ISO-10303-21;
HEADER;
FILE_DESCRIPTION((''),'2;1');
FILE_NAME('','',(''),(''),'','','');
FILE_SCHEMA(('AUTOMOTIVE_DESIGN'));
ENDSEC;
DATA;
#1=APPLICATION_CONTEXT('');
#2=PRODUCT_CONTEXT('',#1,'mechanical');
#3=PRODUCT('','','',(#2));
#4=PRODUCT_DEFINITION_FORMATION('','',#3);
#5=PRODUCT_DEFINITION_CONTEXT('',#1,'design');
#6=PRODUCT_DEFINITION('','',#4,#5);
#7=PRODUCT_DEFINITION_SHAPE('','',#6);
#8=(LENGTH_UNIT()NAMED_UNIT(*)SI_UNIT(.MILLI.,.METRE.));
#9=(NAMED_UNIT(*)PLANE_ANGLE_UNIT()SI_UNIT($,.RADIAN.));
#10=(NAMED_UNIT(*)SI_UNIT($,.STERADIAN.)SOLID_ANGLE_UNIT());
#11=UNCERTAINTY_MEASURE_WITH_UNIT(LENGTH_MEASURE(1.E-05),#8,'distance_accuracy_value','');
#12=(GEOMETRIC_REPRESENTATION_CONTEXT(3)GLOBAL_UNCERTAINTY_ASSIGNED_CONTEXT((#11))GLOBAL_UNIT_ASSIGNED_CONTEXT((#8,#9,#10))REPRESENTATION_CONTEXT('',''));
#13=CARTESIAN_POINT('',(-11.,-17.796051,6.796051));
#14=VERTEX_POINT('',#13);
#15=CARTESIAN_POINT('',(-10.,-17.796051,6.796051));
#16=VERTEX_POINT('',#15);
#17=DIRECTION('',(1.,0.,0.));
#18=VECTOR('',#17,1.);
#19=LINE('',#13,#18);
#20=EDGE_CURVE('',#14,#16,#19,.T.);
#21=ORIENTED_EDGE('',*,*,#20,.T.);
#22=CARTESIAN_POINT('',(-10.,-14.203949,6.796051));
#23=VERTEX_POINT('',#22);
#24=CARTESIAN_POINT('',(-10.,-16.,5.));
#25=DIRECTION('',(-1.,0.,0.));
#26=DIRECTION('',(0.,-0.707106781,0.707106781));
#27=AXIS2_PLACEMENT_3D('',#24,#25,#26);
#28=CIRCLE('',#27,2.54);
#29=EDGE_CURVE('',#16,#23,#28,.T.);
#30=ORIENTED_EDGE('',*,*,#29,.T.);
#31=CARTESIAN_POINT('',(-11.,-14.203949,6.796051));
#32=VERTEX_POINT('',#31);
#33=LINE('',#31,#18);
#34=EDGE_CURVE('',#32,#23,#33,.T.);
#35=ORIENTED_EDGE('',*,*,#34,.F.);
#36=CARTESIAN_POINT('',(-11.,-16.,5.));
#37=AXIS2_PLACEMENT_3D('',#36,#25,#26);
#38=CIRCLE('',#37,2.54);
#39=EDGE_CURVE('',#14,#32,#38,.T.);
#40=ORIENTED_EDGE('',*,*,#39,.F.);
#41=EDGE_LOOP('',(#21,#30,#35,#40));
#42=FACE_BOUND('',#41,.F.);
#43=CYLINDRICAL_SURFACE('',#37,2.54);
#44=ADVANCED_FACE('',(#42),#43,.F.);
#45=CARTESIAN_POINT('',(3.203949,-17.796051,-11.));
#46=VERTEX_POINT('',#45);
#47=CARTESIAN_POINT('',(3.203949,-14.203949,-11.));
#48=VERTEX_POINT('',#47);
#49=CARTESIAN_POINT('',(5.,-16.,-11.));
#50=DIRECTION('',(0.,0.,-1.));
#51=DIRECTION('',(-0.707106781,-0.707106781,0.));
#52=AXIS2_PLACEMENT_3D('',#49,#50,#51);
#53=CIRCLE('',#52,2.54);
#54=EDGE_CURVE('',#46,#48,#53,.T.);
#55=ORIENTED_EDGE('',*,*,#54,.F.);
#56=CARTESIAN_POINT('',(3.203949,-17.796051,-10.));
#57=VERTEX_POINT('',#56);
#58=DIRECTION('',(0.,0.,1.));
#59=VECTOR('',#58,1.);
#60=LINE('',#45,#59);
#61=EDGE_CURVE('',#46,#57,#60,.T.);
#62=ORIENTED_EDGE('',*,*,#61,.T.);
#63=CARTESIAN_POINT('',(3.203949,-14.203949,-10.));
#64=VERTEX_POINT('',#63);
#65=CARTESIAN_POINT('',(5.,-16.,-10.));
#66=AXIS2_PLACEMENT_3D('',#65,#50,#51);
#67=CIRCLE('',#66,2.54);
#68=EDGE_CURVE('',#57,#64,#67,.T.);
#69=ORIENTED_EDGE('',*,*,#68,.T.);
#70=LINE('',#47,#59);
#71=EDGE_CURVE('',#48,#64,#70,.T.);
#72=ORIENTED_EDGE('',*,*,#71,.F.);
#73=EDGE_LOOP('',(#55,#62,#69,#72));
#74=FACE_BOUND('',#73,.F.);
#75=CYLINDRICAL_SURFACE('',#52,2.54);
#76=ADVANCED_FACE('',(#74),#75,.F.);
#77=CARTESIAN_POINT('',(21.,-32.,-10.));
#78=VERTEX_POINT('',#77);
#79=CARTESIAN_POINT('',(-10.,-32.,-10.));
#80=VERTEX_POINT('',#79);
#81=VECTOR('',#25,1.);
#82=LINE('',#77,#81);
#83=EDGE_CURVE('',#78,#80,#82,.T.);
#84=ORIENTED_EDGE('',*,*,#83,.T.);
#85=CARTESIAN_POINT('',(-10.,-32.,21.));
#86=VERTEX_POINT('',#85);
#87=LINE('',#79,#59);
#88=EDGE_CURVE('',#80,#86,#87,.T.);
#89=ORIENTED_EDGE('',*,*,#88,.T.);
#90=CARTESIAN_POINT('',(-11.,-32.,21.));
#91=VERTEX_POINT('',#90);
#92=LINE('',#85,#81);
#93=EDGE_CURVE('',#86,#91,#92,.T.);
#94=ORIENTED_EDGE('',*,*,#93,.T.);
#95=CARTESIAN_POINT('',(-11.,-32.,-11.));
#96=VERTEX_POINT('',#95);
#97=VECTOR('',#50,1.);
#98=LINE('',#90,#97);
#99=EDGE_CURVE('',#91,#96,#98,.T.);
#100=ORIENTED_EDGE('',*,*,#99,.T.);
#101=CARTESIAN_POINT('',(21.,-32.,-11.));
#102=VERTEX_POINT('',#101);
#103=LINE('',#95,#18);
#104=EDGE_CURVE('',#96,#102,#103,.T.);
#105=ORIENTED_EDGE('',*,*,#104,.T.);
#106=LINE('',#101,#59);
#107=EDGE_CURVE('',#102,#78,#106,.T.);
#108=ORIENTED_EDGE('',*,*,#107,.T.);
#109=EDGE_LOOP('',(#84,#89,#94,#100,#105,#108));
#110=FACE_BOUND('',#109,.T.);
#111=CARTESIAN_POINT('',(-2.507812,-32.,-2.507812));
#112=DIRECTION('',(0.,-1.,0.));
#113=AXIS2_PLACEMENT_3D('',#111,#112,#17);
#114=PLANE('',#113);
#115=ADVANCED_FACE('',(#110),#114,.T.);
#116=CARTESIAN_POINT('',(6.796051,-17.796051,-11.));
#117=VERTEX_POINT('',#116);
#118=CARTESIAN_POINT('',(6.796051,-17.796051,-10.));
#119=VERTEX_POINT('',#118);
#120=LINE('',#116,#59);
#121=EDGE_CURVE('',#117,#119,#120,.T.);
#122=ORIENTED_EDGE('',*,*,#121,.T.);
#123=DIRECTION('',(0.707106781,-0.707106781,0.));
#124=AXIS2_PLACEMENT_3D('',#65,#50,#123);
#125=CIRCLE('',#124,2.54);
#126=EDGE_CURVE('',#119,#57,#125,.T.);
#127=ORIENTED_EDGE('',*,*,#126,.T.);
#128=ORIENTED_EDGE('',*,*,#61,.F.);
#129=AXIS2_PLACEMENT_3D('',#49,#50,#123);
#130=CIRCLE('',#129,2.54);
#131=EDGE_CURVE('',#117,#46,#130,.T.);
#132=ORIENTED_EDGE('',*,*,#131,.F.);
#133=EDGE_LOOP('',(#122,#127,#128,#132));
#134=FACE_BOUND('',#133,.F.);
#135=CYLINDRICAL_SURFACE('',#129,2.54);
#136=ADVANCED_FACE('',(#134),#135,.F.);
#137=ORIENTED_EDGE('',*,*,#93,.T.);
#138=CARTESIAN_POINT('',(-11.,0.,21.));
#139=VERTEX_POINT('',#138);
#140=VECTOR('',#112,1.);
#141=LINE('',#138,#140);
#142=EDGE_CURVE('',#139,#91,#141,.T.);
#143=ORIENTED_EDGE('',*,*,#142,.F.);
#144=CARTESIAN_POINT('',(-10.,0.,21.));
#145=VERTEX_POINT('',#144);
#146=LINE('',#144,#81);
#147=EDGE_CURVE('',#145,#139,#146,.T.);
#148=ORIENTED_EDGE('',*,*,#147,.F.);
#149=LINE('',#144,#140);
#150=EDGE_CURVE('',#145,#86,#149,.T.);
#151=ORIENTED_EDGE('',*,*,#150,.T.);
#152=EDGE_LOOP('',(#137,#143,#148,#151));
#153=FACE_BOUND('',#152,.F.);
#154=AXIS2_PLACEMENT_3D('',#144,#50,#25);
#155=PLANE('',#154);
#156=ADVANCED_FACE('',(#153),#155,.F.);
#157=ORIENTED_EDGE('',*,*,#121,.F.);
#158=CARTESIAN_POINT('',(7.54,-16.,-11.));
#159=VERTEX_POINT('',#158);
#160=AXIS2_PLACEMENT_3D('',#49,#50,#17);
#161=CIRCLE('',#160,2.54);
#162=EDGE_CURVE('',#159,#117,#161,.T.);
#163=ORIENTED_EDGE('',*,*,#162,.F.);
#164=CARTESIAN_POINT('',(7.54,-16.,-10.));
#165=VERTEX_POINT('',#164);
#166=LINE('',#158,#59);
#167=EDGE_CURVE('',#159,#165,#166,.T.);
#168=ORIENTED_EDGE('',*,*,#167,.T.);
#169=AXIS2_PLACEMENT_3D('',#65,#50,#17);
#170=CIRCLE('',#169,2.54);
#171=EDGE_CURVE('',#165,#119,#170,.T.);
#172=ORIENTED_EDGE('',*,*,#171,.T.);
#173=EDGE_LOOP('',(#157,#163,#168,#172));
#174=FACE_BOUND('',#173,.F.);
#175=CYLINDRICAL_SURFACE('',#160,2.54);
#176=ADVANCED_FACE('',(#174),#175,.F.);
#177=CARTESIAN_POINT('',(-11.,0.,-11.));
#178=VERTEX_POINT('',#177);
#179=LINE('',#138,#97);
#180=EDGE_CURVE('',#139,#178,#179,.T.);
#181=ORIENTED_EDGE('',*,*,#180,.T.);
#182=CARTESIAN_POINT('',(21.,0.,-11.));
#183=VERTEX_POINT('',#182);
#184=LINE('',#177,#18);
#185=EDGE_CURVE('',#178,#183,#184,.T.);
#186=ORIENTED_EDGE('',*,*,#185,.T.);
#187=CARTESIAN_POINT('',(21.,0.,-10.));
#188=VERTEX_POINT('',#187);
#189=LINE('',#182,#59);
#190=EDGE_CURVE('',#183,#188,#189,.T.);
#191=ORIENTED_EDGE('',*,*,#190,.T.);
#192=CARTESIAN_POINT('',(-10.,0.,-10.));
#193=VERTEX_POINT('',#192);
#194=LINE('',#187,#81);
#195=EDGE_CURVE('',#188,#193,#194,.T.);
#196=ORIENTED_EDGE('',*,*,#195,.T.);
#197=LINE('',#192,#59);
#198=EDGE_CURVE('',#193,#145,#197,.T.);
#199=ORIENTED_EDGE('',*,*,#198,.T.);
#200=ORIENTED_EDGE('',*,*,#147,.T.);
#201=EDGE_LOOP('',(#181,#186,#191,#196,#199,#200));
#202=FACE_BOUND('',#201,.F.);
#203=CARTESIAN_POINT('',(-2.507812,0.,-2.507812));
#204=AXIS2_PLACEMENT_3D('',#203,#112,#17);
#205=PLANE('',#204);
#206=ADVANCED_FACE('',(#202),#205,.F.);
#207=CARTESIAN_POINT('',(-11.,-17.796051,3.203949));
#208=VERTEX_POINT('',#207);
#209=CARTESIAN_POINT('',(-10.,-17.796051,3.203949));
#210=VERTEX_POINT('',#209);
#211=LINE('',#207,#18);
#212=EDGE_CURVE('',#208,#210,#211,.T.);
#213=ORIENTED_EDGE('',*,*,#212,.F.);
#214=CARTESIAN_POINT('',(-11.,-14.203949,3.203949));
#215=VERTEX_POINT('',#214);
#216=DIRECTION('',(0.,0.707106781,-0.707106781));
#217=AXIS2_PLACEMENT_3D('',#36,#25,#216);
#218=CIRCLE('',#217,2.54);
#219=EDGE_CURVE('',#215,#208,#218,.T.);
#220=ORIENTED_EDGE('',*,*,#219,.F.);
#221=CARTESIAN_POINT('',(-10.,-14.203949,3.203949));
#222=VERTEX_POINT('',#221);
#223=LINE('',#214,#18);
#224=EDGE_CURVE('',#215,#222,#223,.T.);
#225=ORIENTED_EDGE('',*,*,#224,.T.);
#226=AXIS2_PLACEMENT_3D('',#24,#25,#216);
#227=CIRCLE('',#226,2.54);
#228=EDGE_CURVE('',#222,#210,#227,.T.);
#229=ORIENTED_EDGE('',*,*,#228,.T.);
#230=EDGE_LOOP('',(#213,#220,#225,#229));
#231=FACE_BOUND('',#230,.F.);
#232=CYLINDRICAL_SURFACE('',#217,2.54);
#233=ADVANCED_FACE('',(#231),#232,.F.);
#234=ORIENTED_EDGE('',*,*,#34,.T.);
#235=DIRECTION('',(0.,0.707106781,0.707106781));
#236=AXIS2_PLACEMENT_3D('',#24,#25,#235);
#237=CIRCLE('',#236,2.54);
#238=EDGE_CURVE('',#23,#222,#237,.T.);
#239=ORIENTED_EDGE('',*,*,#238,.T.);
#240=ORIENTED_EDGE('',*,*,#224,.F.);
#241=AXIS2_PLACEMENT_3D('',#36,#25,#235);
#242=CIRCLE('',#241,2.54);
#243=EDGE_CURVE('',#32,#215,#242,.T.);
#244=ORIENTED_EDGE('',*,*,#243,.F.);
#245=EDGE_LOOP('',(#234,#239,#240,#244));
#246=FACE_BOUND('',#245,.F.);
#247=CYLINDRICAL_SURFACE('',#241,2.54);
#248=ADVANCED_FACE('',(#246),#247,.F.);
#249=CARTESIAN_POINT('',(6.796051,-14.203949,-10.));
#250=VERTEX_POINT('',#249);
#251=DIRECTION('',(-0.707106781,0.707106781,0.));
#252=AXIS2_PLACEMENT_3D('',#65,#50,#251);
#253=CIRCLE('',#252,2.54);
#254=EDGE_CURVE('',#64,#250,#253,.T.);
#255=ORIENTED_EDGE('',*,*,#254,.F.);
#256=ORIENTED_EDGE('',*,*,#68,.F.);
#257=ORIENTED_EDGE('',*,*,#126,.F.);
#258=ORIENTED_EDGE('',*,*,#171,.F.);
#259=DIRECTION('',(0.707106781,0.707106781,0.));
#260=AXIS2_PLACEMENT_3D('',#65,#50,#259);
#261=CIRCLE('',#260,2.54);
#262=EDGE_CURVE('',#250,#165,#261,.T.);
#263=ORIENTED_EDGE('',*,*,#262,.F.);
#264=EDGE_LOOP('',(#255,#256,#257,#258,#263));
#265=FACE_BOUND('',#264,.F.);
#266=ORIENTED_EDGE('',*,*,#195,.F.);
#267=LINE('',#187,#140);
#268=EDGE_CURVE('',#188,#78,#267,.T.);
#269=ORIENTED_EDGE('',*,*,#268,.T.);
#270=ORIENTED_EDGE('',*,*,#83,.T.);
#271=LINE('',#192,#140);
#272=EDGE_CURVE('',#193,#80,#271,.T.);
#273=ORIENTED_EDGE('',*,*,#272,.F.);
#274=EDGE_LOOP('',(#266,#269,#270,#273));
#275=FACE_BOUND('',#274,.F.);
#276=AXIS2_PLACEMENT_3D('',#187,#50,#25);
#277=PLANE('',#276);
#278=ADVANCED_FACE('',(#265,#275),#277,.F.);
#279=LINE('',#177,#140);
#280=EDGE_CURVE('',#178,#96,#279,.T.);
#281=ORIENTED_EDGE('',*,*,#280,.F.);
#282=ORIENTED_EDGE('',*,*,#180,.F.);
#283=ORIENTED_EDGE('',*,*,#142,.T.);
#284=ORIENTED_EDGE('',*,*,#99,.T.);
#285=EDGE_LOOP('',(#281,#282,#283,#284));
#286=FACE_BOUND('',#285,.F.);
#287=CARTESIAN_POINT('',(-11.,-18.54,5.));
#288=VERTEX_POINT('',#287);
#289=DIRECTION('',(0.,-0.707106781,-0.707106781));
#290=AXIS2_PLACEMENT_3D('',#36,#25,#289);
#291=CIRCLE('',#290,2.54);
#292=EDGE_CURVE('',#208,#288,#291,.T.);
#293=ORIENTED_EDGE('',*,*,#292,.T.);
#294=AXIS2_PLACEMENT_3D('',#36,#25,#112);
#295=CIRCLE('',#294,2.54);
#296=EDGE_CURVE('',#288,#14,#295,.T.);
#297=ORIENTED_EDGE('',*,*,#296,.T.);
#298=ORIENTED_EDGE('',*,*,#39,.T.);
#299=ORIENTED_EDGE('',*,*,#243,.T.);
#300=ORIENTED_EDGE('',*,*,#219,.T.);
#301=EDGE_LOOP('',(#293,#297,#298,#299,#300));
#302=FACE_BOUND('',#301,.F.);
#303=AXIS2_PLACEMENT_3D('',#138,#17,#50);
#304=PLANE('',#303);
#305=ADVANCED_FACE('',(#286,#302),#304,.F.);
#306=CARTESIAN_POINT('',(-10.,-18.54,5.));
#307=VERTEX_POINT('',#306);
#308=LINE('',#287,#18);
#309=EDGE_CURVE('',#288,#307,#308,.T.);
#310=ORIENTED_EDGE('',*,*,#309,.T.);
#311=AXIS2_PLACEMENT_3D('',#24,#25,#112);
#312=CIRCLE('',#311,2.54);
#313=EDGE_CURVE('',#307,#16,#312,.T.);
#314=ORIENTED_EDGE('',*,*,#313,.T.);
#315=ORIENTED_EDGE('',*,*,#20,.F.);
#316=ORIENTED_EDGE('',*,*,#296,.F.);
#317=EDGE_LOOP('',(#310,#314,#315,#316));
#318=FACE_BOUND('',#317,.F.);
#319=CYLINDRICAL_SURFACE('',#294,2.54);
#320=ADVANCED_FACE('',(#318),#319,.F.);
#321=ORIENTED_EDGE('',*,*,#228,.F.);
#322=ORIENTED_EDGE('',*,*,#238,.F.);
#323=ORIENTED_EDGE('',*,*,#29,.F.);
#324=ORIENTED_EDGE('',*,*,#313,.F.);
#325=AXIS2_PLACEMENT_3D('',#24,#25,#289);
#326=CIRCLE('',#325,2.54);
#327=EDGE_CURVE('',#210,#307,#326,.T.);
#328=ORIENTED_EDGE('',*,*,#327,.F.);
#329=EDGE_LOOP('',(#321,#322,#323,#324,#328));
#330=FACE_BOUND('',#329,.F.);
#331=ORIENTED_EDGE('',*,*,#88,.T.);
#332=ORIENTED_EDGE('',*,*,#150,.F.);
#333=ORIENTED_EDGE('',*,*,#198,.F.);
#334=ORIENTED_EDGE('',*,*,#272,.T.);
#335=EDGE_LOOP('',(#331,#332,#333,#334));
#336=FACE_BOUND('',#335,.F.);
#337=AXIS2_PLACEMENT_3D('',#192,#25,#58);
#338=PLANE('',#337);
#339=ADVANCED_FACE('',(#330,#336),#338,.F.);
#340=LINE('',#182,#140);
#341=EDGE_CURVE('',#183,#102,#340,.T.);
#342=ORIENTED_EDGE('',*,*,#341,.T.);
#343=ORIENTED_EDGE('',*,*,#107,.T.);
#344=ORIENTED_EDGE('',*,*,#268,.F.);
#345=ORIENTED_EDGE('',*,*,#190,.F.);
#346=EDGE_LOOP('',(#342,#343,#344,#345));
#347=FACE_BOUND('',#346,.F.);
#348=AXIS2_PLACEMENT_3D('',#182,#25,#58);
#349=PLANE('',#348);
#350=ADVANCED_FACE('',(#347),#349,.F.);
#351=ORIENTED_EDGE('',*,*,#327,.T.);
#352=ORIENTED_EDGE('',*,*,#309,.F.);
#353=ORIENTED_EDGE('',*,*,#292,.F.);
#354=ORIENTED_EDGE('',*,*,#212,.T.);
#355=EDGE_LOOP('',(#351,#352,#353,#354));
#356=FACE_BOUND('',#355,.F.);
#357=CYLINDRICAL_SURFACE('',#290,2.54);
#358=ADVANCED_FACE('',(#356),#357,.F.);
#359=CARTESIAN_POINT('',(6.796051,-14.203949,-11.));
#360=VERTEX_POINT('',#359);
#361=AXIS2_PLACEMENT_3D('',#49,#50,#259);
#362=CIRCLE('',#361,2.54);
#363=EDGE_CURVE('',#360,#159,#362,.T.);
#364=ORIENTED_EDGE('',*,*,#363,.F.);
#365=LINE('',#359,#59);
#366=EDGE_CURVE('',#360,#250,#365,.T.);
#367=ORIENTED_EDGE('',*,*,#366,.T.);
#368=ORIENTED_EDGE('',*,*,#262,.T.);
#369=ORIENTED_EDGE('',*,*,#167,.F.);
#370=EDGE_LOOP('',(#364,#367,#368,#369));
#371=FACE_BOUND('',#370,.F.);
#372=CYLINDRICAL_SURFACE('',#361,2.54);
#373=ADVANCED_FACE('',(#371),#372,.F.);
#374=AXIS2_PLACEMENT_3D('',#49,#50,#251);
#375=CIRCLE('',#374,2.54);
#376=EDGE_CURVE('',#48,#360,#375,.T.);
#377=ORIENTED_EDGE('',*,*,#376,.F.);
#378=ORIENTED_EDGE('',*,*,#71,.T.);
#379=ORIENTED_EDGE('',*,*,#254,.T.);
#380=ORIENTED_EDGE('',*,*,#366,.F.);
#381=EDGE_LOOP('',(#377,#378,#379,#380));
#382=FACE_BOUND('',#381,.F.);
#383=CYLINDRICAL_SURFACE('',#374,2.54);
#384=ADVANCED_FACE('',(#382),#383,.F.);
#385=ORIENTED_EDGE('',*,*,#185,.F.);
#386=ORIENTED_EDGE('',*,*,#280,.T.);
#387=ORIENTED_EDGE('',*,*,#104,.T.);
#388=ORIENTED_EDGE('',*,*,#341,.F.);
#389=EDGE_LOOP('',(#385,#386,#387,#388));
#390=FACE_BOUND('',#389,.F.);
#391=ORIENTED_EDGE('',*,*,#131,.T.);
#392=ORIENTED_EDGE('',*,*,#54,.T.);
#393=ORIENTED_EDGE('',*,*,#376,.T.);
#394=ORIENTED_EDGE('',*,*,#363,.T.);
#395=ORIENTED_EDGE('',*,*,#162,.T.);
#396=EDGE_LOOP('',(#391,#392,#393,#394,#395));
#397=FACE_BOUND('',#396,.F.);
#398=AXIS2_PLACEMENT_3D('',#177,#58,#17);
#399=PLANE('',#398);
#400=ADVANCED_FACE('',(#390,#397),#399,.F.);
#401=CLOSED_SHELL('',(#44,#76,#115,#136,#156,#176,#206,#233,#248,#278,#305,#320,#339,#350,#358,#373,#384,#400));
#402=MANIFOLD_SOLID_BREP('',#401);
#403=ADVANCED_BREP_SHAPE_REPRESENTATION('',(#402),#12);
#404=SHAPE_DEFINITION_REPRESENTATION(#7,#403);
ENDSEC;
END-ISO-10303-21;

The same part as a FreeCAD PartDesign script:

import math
import FreeCAD as App
import Part
import Sketcher

V = App.Vector
Q = App.Units.Quantity

doc = App.newDocument("Part")
body = doc.addObject("PartDesign::Body", "Body")

sketch1 = doc.addObject("Sketcher::SketchObject", "Sketch")
body.addObject(sketch1)
sketch1.AttachmentSupport = (doc.XZ_Plane, [""])
sketch1.MapMode = "FlatFace"
sketch1.addGeometry(Part.LineSegment(V(-10, 21, 0), V(-11, 21, 0)), False)
sketch1.addGeometry(Part.LineSegment(V(-11, 21, 0), V(-11, -11, 0)), False)
sketch1.addGeometry(Part.LineSegment(V(-11, -11, 0), V(21, -11, 0)), False)
sketch1.addGeometry(Part.LineSegment(V(21, -11, 0), V(21, -10, 0)), False)
sketch1.addGeometry(Part.LineSegment(V(21, -10, 0), V(-10, -10, 0)), False)
sketch1.addGeometry(Part.LineSegment(V(-10, -10, 0), V(-10, 21, 0)), False)
sketch1.addConstraint(Sketcher.Constraint("Coincident", 0, 2, 1, 1))
sketch1.addConstraint(Sketcher.Constraint("Coincident", 1, 2, 2, 1))
sketch1.addConstraint(Sketcher.Constraint("Coincident", 2, 2, 3, 1))
sketch1.addConstraint(Sketcher.Constraint("Coincident", 3, 2, 4, 1))
sketch1.addConstraint(Sketcher.Constraint("Coincident", 4, 2, 5, 1))
sketch1.addConstraint(Sketcher.Constraint("Coincident", 5, 2, 0, 1))
sketch1.addConstraint(Sketcher.Constraint("Horizontal", 0))
sketch1.addConstraint(Sketcher.Constraint("Vertical", 1))
sketch1.addConstraint(Sketcher.Constraint("Horizontal", 2))
sketch1.addConstraint(Sketcher.Constraint("Vertical", 3))
sketch1.addConstraint(Sketcher.Constraint("Horizontal", 4))
sketch1.addConstraint(Sketcher.Constraint("Vertical", 5))
sketch1.addConstraint(Sketcher.Constraint("Equal", 2, 1))
sketch1.addConstraint(Sketcher.Constraint("Equal", 0, 3))
sketch1.addConstraint(Sketcher.Constraint("DistanceX", 0, 2, 0, 1, Q("1 mm")))
sketch1.addConstraint(Sketcher.Constraint("DistanceX", 2, 1, 2, 2, Q("32 mm")))
sketch1.addConstraint(Sketcher.Constraint("DistanceX", 0, 2, -1, 1, Q("11 mm")))
sketch1.addConstraint(Sketcher.Constraint("DistanceY", -1, 1, 0, 2, Q("21 mm")))
pad1 = doc.addObject("PartDesign::Pad", "Pad")
body.addObject(pad1)
pad1.Profile = sketch1
pad1.Length = 32

sketch2 = doc.addObject("Sketcher::SketchObject", "Sketch001")
body.addObject(sketch2)
sketch2.AttachmentSupport = (doc.YZ_Plane, [""])
sketch2.MapMode = "FlatFace"
sketch2.AttachmentOffset = App.Placement(V(0, 0, -11), App.Rotation())
sketch2.addGeometry(Part.ArcOfCircle(Part.Circle(V(-16, 5, 0), V(0, 0, 1), 2.54), math.radians(-135), math.radians(-45)), False)
sketch2.addGeometry(Part.ArcOfCircle(Part.Circle(V(-16, 5, 0), V(0, 0, 1), 2.54), math.radians(180), math.radians(225)), False)
sketch2.addGeometry(Part.ArcOfCircle(Part.Circle(V(-16, 5, 0), V(0, 0, 1), 2.54), math.radians(135), math.radians(180)), False)
sketch2.addGeometry(Part.ArcOfCircle(Part.Circle(V(-16, 5, 0), V(0, 0, 1), 2.54), math.radians(45), math.radians(135)), False)
sketch2.addGeometry(Part.ArcOfCircle(Part.Circle(V(-16, 5, 0), V(0, 0, 1), 2.54), math.radians(-45), math.radians(45)), False)
sketch2.addConstraint(Sketcher.Constraint("Tangent", 0, 1, 1, 2))
sketch2.addConstraint(Sketcher.Constraint("Tangent", 1, 1, 2, 2))
sketch2.addConstraint(Sketcher.Constraint("Tangent", 2, 1, 3, 2))
sketch2.addConstraint(Sketcher.Constraint("Tangent", 3, 1, 4, 2))
sketch2.addConstraint(Sketcher.Constraint("Tangent", 4, 1, 0, 2))
sketch2.addConstraint(Sketcher.Constraint("Coincident", 2, 3, 0, 3))
sketch2.addConstraint(Sketcher.Constraint("Horizontal", 4, 3, 1, 1))
sketch2.addConstraint(Sketcher.Constraint("Horizontal", 2, 1, 3, 1))
sketch2.addConstraint(Sketcher.Constraint("Horizontal", 0, 1, 4, 1))
sketch2.addConstraint(Sketcher.Constraint("Vertical", 0, 1, 2, 1))
sketch2.addConstraint(Sketcher.Constraint("Radius", 0, Q("2.54 mm")))
sketch2.addConstraint(Sketcher.Constraint("DistanceX", 0, 3, -1, 1, Q("16 mm")))
sketch2.addConstraint(Sketcher.Constraint("DistanceY", -1, 1, 0, 3, Q("5 mm")))
sketch2.addConstraint(Sketcher.Constraint("DistanceX", 0, 1, -1, 1, Q("17.796051 mm")))
pocket1 = doc.addObject("PartDesign::Pocket", "Pocket")
body.addObject(pocket1)
pocket1.Profile = sketch2
pocket1.Length = 25.4
pocket1.Reversed = True

sketch3 = doc.addObject("Sketcher::SketchObject", "Sketch002")
body.addObject(sketch3)
sketch3.AttachmentSupport = (doc.XY_Plane, [""])
sketch3.MapMode = "FlatFace"
sketch3.AttachmentOffset = App.Placement(V(0, 0, -11), App.Rotation())
sketch3.addGeometry(Part.ArcOfCircle(Part.Circle(V(5, -16, 0), V(0, 0, 1), 2.54), math.radians(0), math.radians(45)), False)
sketch3.addGeometry(Part.ArcOfCircle(Part.Circle(V(5, -16, 0), V(0, 0, 1), 2.54), math.radians(-45), math.radians(0)), False)
sketch3.addGeometry(Part.ArcOfCircle(Part.Circle(V(5, -16, 0), V(0, 0, 1), 2.54), math.radians(-135), math.radians(-45)), False)
sketch3.addGeometry(Part.ArcOfCircle(Part.Circle(V(5, -16, 0), V(0, 0, 1), 2.54), math.radians(135), math.radians(225)), False)
sketch3.addGeometry(Part.ArcOfCircle(Part.Circle(V(5, -16, 0), V(0, 0, 1), 2.54), math.radians(45), math.radians(135)), False)
sketch3.addConstraint(Sketcher.Constraint("Tangent", 0, 1, 1, 2))
sketch3.addConstraint(Sketcher.Constraint("Tangent", 1, 1, 2, 2))
sketch3.addConstraint(Sketcher.Constraint("Tangent", 2, 1, 3, 2))
sketch3.addConstraint(Sketcher.Constraint("Tangent", 3, 1, 4, 2))
sketch3.addConstraint(Sketcher.Constraint("Tangent", 4, 1, 0, 2))
sketch3.addConstraint(Sketcher.Constraint("Coincident", 2, 3, 0, 3))
sketch3.addConstraint(Sketcher.Constraint("Horizontal", 4, 3, 0, 1))
sketch3.addConstraint(Sketcher.Constraint("Horizontal", 1, 1, 2, 1))
sketch3.addConstraint(Sketcher.Constraint("Horizontal", 3, 1, 4, 1))
sketch3.addConstraint(Sketcher.Constraint("Vertical", 2, 1, 3, 1))
sketch3.addConstraint(Sketcher.Constraint("Radius", 0, Q("2.54 mm")))
sketch3.addConstraint(Sketcher.Constraint("DistanceX", -1, 1, 0, 3, Q("5 mm")))
sketch3.addConstraint(Sketcher.Constraint("DistanceY", 0, 3, -1, 1, Q("16 mm")))
sketch3.addConstraint(Sketcher.Constraint("DistanceX", -1, 1, 1, 1, Q("6.796051 mm")))
pocket2 = doc.addObject("PartDesign::Pocket", "Pocket001")
body.addObject(pocket2)
pocket2.Profile = sketch3
pocket2.Length = 25.4
pocket2.Reversed = True

doc.recompute()
